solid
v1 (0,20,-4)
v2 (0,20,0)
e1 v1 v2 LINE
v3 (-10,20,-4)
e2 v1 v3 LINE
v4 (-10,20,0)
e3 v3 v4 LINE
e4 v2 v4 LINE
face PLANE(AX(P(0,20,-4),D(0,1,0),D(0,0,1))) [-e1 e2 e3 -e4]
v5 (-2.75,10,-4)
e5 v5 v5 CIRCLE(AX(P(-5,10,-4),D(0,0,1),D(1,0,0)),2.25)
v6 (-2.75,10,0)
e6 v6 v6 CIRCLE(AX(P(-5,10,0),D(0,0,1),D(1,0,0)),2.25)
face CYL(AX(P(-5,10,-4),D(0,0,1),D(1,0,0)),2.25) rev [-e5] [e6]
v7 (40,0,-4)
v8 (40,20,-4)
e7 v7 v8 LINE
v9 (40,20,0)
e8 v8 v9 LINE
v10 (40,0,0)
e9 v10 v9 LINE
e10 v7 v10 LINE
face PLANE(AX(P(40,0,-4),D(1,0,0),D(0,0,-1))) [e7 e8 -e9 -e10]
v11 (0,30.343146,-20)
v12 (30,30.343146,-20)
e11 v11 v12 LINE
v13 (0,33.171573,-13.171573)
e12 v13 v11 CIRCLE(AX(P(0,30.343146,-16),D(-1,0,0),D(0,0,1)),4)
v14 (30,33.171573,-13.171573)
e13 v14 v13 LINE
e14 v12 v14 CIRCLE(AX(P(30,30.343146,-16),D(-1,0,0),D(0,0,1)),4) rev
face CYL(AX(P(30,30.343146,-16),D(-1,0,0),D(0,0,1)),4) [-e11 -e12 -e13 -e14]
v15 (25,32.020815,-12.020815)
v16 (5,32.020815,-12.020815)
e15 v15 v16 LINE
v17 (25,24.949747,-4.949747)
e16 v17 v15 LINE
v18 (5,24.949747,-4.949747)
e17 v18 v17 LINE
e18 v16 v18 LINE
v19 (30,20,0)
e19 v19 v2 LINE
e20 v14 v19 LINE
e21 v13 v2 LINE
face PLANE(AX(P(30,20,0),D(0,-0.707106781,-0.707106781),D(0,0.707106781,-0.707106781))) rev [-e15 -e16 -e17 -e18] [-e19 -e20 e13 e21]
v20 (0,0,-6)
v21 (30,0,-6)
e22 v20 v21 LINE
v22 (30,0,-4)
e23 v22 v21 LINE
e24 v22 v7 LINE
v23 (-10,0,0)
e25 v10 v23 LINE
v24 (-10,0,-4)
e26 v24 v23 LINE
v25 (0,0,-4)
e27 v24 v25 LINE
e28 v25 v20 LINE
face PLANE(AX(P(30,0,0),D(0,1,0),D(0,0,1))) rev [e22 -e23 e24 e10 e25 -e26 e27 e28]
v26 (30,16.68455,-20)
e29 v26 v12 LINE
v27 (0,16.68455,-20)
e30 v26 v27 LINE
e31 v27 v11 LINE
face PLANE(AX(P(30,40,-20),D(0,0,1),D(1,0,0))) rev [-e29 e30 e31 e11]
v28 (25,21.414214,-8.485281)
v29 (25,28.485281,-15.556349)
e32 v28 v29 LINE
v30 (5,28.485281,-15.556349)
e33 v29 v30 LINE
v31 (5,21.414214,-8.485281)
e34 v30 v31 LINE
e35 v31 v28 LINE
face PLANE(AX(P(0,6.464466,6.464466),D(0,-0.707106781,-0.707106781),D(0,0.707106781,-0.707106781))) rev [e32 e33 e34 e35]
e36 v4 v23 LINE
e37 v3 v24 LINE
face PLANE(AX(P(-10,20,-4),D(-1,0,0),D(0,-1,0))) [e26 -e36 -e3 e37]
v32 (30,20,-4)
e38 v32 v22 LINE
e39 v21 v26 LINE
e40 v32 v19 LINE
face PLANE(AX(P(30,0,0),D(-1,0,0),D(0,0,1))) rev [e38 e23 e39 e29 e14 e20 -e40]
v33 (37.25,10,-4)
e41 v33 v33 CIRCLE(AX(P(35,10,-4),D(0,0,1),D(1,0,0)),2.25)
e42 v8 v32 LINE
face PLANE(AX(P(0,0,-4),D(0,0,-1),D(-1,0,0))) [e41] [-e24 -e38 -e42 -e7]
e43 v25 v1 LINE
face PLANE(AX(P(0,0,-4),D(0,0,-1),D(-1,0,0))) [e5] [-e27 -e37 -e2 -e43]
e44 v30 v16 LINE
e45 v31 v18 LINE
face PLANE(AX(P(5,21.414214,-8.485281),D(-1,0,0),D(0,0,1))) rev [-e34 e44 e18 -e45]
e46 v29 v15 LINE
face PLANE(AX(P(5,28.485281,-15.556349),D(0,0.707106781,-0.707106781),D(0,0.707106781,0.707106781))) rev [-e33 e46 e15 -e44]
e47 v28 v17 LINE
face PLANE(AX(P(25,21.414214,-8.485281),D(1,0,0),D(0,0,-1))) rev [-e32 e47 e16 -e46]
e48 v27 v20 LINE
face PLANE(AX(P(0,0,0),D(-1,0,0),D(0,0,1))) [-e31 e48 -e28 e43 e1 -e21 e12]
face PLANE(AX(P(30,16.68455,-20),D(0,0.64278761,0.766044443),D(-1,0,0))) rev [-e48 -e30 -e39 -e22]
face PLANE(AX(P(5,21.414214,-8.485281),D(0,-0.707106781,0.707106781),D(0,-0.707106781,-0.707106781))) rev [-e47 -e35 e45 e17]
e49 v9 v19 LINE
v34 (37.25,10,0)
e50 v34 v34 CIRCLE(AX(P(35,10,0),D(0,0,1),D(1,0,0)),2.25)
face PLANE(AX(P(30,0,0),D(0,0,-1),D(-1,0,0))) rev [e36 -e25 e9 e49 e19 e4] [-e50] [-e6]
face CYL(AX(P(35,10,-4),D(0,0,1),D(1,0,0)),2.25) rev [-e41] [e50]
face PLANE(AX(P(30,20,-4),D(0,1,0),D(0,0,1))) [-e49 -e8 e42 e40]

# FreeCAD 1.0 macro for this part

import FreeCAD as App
import Part
import Sketcher
from FreeCAD import Vector


def edges_at(feature, points):
    """Names of the edges that pass closest to the given points."""
    edges = feature.Shape.Edges
    near = lambda p: min(range(len(edges)), key=lambda i: edges[i].distToShape(Part.Vertex(*p))[0])
    return sorted({f"Edge{near(p) + 1}" for p in points})

doc = App.newDocument("Part")
body = doc.addObject("PartDesign::Body", "Body")

sketch1 = doc.addObject("Sketcher::SketchObject", "Sketch")
body.addObject(sketch1)
sketch1.AttachmentSupport = (doc.YZ_Plane, [""])
sketch1.MapMode = "FlatFace"
sketch1.addGeometry([
    Part.LineSegment(Vector(40, -20, 0), Vector(20, 0, 0)),
    Part.LineSegment(Vector(20, 0, 0), Vector(0, 0, 0)),
    Part.LineSegment(Vector(0, 0, 0), Vector(0, -20, 0)),
    Part.LineSegment(Vector(0, -20, 0), Vector(40, -20, 0)),
], False)
sketch1.addConstraint([
    Sketcher.Constraint("Coincident", 0, 2, 1, 1),
    Sketcher.Constraint("Coincident", 1, 2, 2, 1),
    Sketcher.Constraint("Coincident", 2, 2, 3, 1),
    Sketcher.Constraint("Coincident", 3, 2, 0, 1),
    Sketcher.Constraint("Horizontal", 1),
    Sketcher.Constraint("Vertical", 2),
    Sketcher.Constraint("Horizontal", 3),
    Sketcher.Constraint("Coincident", 1, 2, -1, 1),
    Sketcher.Constraint("Equal", 1, 2),
    Sketcher.Constraint("DistanceX", 1, 2, 1, 1, 20.0),
    Sketcher.Constraint("DistanceX", 3, 1, 3, 2, 40.0),
])
pad1 = doc.addObject("PartDesign::Pad", "Pad")
body.addObject(pad1)
pad1.Profile = sketch1
pad1.Length = 30

sketch2 = doc.addObject("Sketcher::SketchObject", "Sketch001")
body.addObject(sketch2)
sketch2.AttachmentSupport = (doc.XY_Plane, [""])
sketch2.MapMode = "FlatFace"
sketch2.addGeometry([
    Part.LineSegment(Vector(-10, 20, 0), Vector(-10, 0, 0)),
    Part.LineSegment(Vector(-10, 0, 0), Vector(0, 0, 0)),
    Part.LineSegment(Vector(0, 0, 0), Vector(0, 20, 0)),
    Part.LineSegment(Vector(0, 20, 0), Vector(-10, 20, 0)),
    Part.Circle(Vector(-5, 10, 0), Vector(0, 0, 1), 2.2),
    Part.LineSegment(Vector(30, 20, 0), Vector(30, 0, 0)),
    Part.LineSegment(Vector(30, 0, 0), Vector(40, 0, 0)),
    Part.LineSegment(Vector(40, 0, 0), Vector(40, 20, 0)),
    Part.LineSegment(Vector(40, 20, 0), Vector(30, 20, 0)),
    Part.Circle(Vector(35, 10, 0), Vector(0, 0, 1), 2.2),
], False)
sketch2.addConstraint([
    Sketcher.Constraint("Coincident", 0, 2, 1, 1),
    Sketcher.Constraint("Coincident", 1, 2, 2, 1),
    Sketcher.Constraint("Coincident", 2, 2, 3, 1),
    Sketcher.Constraint("Coincident", 3, 2, 0, 1),
    Sketcher.Constraint("Coincident", 5, 2, 6, 1),
    Sketcher.Constraint("Coincident", 6, 2, 7, 1),
    Sketcher.Constraint("Coincident", 7, 2, 8, 1),
    Sketcher.Constraint("Coincident", 8, 2, 5, 1),
    Sketcher.Constraint("Vertical", 0),
    Sketcher.Constraint("Horizontal", 1),
    Sketcher.Constraint("Vertical", 2),
    Sketcher.Constraint("Horizontal", 3),
    Sketcher.Constraint("Vertical", 5),
    Sketcher.Constraint("Horizontal", 6),
    Sketcher.Constraint("Vertical", 7),
    Sketcher.Constraint("Horizontal", 8),
    Sketcher.Constraint("Coincident", 1, 2, -1, 1),
    Sketcher.Constraint("Equal", 4, 9),
    Sketcher.Constraint("PointOnObject", 5, 2, -1),
    Sketcher.Constraint("Horizontal", 4, 3, 9, 3),
    Sketcher.Constraint("Horizontal", 3, 2, 7, 2),
    Sketcher.Constraint("Equal", 3, 6),
    Sketcher.Constraint("Diameter", 4, 4.5),
    Sketcher.Constraint("DistanceX", 1, 1, 1, 2, 10.0),
    Sketcher.Constraint("DistanceY", 0, 2, 0, 1, 20.0),
    Sketcher.Constraint("DistanceX", 4, 3, -1, 1, 5.0),
    Sketcher.Constraint("DistanceY", -1, 1, 4, 3, 10.0),
    Sketcher.Constraint("DistanceX", -1, 1, 9, 3, 35.0),
    Sketcher.Constraint("DistanceX", -1, 1, 5, 2, 30.0),
])
pad2 = doc.addObject("PartDesign::Pad", "Pad001")
body.addObject(pad2)
pad2.Profile = sketch2
pad2.Length = 4
pad2.Reversed = True

sketch3 = doc.addObject("Sketcher::SketchObject", "Sketch002")
body.addObject(sketch3)
sketch3.Placement = App.Placement(Vector(0, 10, 10), App.Rotation(Vector(1, 0, 0), Vector(0, 0.707106781, -0.707106781), Vector(0, 0.707106781, 0.707106781), "ZXY"))
sketch3.addGeometry([
    Part.LineSegment(Vector(5, 31, 0), Vector(5, 21, 0)),
    Part.LineSegment(Vector(5, 21, 0), Vector(25, 21, 0)),
    Part.LineSegment(Vector(25, 21, 0), Vector(25, 31, 0)),
    Part.LineSegment(Vector(25, 31, 0), Vector(5, 31, 0)),
], False)
sketch3.addConstraint([
    Sketcher.Constraint("Coincident", 0, 2, 1, 1),
    Sketcher.Constraint("Coincident", 1, 2, 2, 1),
    Sketcher.Constraint("Coincident", 2, 2, 3, 1),
    Sketcher.Constraint("Coincident", 3, 2, 0, 1),
    Sketcher.Constraint("Vertical", 0),
    Sketcher.Constraint("Horizontal", 1),
    Sketcher.Constraint("Vertical", 2),
    Sketcher.Constraint("Horizontal", 3),
    Sketcher.Constraint("DistanceX", 1, 1, 1, 2, 20.0),
    Sketcher.Constraint("DistanceY", 0, 2, 0, 1, 10.0),
    Sketcher.Constraint("DistanceX", -1, 1, 0, 2, 5.0),
    Sketcher.Constraint("DistanceY", -1, 1, 0, 2, 21.142136),
])
pocket1 = doc.addObject("PartDesign::Pocket", "Pocket")
body.addObject(pocket1)
pocket1.Profile = sketch3
pocket1.Length = 5
doc.recompute()

fillet = doc.addObject("PartDesign::Fillet", "Fillet")
body.addObject(fillet)
fillet.Base = (pocket1, edges_at(pocket1, [(15, 40, -20)]))
fillet.Radius = 4
doc.recompute()

chamfer = doc.addObject("PartDesign::Chamfer", "Chamfer")
body.addObject(chamfer)
chamfer.Base = (fillet, edges_at(fillet, [(15, 0, -20)]))
chamfer.ChamferType = "Two distances"
chamfer.Size = 14
chamfer.Size2 = 16.68455
chamfer.FlipDirection = True

doc.recompute()
